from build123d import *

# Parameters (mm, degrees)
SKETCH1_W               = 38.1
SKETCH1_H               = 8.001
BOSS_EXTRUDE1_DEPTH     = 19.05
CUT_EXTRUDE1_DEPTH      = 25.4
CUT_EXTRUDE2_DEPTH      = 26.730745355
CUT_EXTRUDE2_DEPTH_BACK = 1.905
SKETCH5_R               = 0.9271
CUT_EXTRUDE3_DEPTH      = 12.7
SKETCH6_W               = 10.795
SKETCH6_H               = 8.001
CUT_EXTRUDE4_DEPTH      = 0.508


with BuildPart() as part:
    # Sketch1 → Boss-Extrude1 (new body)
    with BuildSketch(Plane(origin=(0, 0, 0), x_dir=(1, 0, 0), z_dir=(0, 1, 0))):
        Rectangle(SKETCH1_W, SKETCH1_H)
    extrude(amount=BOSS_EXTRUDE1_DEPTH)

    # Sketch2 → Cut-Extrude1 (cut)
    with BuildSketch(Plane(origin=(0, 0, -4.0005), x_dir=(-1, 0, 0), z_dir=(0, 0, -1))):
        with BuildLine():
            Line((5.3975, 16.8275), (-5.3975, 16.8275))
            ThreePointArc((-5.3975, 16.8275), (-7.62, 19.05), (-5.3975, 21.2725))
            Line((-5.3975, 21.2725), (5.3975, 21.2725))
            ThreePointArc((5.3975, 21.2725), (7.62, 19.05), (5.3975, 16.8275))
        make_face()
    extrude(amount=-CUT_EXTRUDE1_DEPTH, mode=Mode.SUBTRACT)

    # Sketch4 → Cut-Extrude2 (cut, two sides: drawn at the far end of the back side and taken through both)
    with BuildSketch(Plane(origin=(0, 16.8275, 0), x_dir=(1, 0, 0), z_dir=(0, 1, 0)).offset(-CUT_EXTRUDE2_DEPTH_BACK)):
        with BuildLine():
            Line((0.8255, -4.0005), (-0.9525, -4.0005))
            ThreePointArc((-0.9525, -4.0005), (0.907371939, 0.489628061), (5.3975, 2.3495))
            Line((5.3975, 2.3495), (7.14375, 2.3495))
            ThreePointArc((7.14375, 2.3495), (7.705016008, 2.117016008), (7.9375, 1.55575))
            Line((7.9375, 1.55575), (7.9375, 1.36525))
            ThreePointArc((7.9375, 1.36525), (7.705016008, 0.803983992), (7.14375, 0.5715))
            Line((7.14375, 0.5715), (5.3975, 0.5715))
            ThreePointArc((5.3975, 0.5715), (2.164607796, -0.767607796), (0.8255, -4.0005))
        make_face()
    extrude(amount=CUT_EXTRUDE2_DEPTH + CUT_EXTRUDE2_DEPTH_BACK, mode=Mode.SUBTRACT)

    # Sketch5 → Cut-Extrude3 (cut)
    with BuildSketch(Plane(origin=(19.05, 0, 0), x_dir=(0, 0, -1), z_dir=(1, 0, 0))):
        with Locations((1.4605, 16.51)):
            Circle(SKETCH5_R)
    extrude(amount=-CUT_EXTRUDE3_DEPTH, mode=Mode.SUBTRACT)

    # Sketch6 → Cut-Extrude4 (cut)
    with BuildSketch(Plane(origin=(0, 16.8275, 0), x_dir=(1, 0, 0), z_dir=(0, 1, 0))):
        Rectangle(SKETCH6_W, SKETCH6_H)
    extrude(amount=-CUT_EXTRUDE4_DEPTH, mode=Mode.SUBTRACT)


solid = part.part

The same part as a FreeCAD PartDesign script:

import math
import FreeCAD as App
import Part
import Sketcher

V = App.Vector
Q = App.Units.Quantity

doc = App.newDocument("Part")
body = doc.addObject("PartDesign::Body", "Body")

# Sketch on XZ plane
sketch1 = body.newObject("Sketcher::SketchObject", "Sketch")
sketch1.AttachmentSupport = (doc.getObject("XZ_Plane"), [""])
sketch1.MapMode = "FlatFace"
sketch1.addGeometry([
    Part.LineSegment(V(-19, -4, 0), V(-19, 4, 0)),
    Part.LineSegment(V(-19, 4, 0), V(19, 4, 0)),
    Part.LineSegment(V(19, 4, 0), V(19, -4, 0)),
    Part.LineSegment(V(19, -4, 0), V(-19, -4, 0)),
], False)
sketch1.addConstraint([
    Sketcher.Constraint("Coincident", 0, 2, 1, 1),
    Sketcher.Constraint("Coincident", 1, 2, 2, 1),
    Sketcher.Constraint("Coincident", 2, 2, 3, 1),
    Sketcher.Constraint("Coincident", 3, 2, 0, 1),
    Sketcher.Constraint("Vertical", 0),
    Sketcher.Constraint("Horizontal", 1),
    Sketcher.Constraint("Vertical", 2),
    Sketcher.Constraint("Horizontal", 3),
    Sketcher.Constraint("Symmetric", 0, 2, 2, 2, -1, 1),
    Sketcher.Constraint("DistanceX", 1, 1, 1, 2, Q("1.5 in")),
    Sketcher.Constraint("DistanceY", 0, 1, 0, 2, Q("0.315 in")),
])
pad1 = body.newObject("PartDesign::Pad", "Pad")
pad1.Profile = sketch1
pad1.Length = Q("0.75 in")
pad1.Reversed = True

# Sketch on XY plane
sketch2 = body.newObject("Sketcher::SketchObject", "Sketch001")
sketch2.AttachmentSupport = (doc.getObject("XY_Plane"), [""])
sketch2.MapMode = "FlatFace"
sketch2.AttachmentOffset = App.Placement(V(0, 0, -0.1575 * 25.4), App.Rotation())
sketch2.addGeometry([
    Part.LineSegment(V(5.4, 16.8, 0), V(-5.4, 16.8, 0)),
    Part.ArcOfCircle(Part.Circle(V(-5.4, 19.1, 0), V(0, 0, 1), 2.2), math.radians(90), math.radians(270)),
    Part.LineSegment(V(-5.4, 21.3, 0), V(5.4, 21.3, 0)),
    Part.ArcOfCircle(Part.Circle(V(5.4, 19.1, 0), V(0, 0, 1), 2.2), math.radians(-90), math.radians(90)),
], False)
sketch2.addConstraint([
    Sketcher.Constraint("Tangent", 0, 2, 1, 2),
    Sketcher.Constraint("Tangent", 1, 1, 2, 1),
    Sketcher.Constraint("Tangent", 2, 2, 3, 2),
    Sketcher.Constraint("Tangent", 3, 1, 0, 1),
    Sketcher.Constraint("Horizontal", 0),
    Sketcher.Constraint("Horizontal", 2),
    Sketcher.Constraint("Radius", 1, Q("0.0875 in")),
    Sketcher.Constraint("DistanceX", 0, 2, 0, 1, Q("0.425 in")),
    Sketcher.Constraint("DistanceY", -1, 1, 1, 3, Q("0.75 in")),
    Sketcher.Constraint("DistanceX", 1, 3, -1, 1, Q("0.2125 in")),
])
pocket1 = body.newObject("PartDesign::Pocket", "Pocket")
pocket1.Profile = sketch2
pocket1.Length = Q("1 in")
pocket1.Reversed = True

# Sketch on XZ plane
sketch3 = body.newObject("Sketcher::SketchObject", "Sketch002")
sketch3.AttachmentSupport = (doc.getObject("XZ_Plane"), [""])
sketch3.MapMode = "FlatFace"
sketch3.AttachmentOffset = App.Placement(V(0, 0, -0.6625 * 25.4), App.Rotation())
sketch3.addGeometry([
    Part.LineSegment(V(-0.95, 4, 0), V(0.83, 4, 0)),  # 0
    Part.ArcOfCircle(Part.Circle(V(5.4, 4, 0), V(0, 0, 1), 4.57), math.radians(180), math.radians(270)),  # 1
    Part.LineSegment(V(5.4, -0.57, 0), V(7.14, -0.57, 0)),  # 2
    Part.ArcOfCircle(Part.Circle(V(7.14, -1.37, 0), V(0, 0, 1), 0.79), math.radians(0), math.radians(90)),  # 3
    Part.LineSegment(V(7.94, -1.37, 0), V(7.94, -1.56, 0)),  # 4
    Part.ArcOfCircle(Part.Circle(V(7.14, -1.56, 0), V(0, 0, 1), 0.79), math.radians(-90), math.radians(0)),  # 5
    Part.LineSegment(V(7.14, -2.35, 0), V(5.4, -2.35, 0)),  # 6
    Part.ArcOfCircle(Part.Circle(V(5.4, 4, 0), V(0, 0, 1), 6.35), math.radians(180), math.radians(270)),  # 7
], False)
sketch3.addConstraint([
    Sketcher.Constraint("Coincident", 0, 2, 1, 1),
    Sketcher.Constraint("Tangent", 1, 2, 2, 1),
    Sketcher.Constraint("Tangent", 2, 2, 3, 2),
    Sketcher.Constraint("Tangent", 3, 1, 4, 1),
    Sketcher.Constraint("Tangent", 4, 2, 5, 2),
    Sketcher.Constraint("Tangent", 5, 1, 6, 1),
    Sketcher.Constraint("Tangent", 6, 2, 7, 2),
    Sketcher.Constraint("Coincident", 7, 1, 0, 1),
    Sketcher.Constraint("Horizontal", 0),
    Sketcher.Constraint("Horizontal", 2),
    Sketcher.Constraint("Vertical", 4),
    Sketcher.Constraint("Horizontal", 6),
    Sketcher.Constraint("Coincident", 7, 3, 1, 3),
    Sketcher.Constraint("Equal", 3, 5),
    Sketcher.Constraint("Horizontal", 7, 3, 0, 2),
    Sketcher.Constraint("Radius", 1, Q("0.18 in")),
    Sketcher.Constraint("Radius", 7, Q("0.25 in")),
    Sketcher.Constraint("Radius", 3, Q("0.03125 in")),
    Sketcher.Constraint("DistanceX", 1, 2, 3, 1, Q("0.1 in")),
    Sketcher.Constraint("DistanceX", -1, 1, 3, 3, Q("0.28125 in")),
    Sketcher.Constraint("DistanceY", -1, 1, 1, 3, Q("0.1575 in")),
])
pocket2 = body.newObject("PartDesign::Pocket", "Pocket001")
pocket2.Profile = sketch3
pocket2.Type = "TwoLengths"
pocket2.Length = 26.730745
pocket2.Length2 = Q("0.075 in")

# Sketch on YZ plane
sketch4 = body.newObject("Sketcher::SketchObject", "Sketch003")
sketch4.AttachmentSupport = (doc.getObject("YZ_Plane"), [""])
sketch4.MapMode = "FlatFace"
sketch4.AttachmentOffset = App.Placement(V(0, 0, 0.75 * 25.4), App.Rotation())
sketch4.addGeometry(Part.Circle(V(16.5, -1.5, 0), V(0, 0, 1), 0.9), False)
sketch4.addConstraint([
    Sketcher.Constraint("Diameter", 0, Q("0.073 in")),
    Sketcher.Constraint("DistanceX", -1, 1, 0, 3, Q("0.65 in")),
    Sketcher.Constraint("DistanceY", 0, 3, -1, 1, Q("0.0575 in")),
])
pocket3 = body.newObject("PartDesign::Pocket", "Pocket002")
pocket3.Profile = sketch4
pocket3.Length = Q("0.5 in")

# Sketch on XZ plane
sketch5 = body.newObject("Sketcher::SketchObject", "Sketch004")
sketch5.AttachmentSupport = (doc.getObject("XZ_Plane"), [""])
sketch5.MapMode = "FlatFace"
sketch5.AttachmentOffset = App.Placement(V(0, 0, -0.6625 * 25.4), App.Rotation())
sketch5.addGeometry([
    Part.LineSegment(V(-5, -4, 0), V(-5, 4, 0)),
    Part.LineSegment(V(-5, 4, 0), V(5, 4, 0)),
    Part.LineSegment(V(5, 4, 0), V(5, -4, 0)),
    Part.LineSegment(V(5, -4, 0), V(-5, -4, 0)),
], False)
sketch5.addConstraint([
    Sketcher.Constraint("Coincident", 0, 2, 1, 1),
    Sketcher.Constraint("Coincident", 1, 2, 2, 1),
    Sketcher.Constraint("Coincident", 2, 2, 3, 1),
    Sketcher.Constraint("Coincident", 3, 2, 0, 1),
    Sketcher.Constraint("Vertical", 0),
    Sketcher.Constraint("Horizontal", 1),
    Sketcher.Constraint("Vertical", 2),
    Sketcher.Constraint("Horizontal", 3),
    Sketcher.Constraint("Symmetric", 0, 2, 2, 2, -1, 1),
    Sketcher.Constraint("DistanceX", 1, 1, 1, 2, Q("0.425 in")),
    Sketcher.Constraint("DistanceY", 0, 1, 0, 2, Q("0.315 in")),
])
pocket4 = body.newObject("PartDesign::Pocket", "Pocket003")
pocket4.Profile = sketch5
pocket4.Length = Q("0.02 in")
pocket4.Reversed = True

doc.recompute()
